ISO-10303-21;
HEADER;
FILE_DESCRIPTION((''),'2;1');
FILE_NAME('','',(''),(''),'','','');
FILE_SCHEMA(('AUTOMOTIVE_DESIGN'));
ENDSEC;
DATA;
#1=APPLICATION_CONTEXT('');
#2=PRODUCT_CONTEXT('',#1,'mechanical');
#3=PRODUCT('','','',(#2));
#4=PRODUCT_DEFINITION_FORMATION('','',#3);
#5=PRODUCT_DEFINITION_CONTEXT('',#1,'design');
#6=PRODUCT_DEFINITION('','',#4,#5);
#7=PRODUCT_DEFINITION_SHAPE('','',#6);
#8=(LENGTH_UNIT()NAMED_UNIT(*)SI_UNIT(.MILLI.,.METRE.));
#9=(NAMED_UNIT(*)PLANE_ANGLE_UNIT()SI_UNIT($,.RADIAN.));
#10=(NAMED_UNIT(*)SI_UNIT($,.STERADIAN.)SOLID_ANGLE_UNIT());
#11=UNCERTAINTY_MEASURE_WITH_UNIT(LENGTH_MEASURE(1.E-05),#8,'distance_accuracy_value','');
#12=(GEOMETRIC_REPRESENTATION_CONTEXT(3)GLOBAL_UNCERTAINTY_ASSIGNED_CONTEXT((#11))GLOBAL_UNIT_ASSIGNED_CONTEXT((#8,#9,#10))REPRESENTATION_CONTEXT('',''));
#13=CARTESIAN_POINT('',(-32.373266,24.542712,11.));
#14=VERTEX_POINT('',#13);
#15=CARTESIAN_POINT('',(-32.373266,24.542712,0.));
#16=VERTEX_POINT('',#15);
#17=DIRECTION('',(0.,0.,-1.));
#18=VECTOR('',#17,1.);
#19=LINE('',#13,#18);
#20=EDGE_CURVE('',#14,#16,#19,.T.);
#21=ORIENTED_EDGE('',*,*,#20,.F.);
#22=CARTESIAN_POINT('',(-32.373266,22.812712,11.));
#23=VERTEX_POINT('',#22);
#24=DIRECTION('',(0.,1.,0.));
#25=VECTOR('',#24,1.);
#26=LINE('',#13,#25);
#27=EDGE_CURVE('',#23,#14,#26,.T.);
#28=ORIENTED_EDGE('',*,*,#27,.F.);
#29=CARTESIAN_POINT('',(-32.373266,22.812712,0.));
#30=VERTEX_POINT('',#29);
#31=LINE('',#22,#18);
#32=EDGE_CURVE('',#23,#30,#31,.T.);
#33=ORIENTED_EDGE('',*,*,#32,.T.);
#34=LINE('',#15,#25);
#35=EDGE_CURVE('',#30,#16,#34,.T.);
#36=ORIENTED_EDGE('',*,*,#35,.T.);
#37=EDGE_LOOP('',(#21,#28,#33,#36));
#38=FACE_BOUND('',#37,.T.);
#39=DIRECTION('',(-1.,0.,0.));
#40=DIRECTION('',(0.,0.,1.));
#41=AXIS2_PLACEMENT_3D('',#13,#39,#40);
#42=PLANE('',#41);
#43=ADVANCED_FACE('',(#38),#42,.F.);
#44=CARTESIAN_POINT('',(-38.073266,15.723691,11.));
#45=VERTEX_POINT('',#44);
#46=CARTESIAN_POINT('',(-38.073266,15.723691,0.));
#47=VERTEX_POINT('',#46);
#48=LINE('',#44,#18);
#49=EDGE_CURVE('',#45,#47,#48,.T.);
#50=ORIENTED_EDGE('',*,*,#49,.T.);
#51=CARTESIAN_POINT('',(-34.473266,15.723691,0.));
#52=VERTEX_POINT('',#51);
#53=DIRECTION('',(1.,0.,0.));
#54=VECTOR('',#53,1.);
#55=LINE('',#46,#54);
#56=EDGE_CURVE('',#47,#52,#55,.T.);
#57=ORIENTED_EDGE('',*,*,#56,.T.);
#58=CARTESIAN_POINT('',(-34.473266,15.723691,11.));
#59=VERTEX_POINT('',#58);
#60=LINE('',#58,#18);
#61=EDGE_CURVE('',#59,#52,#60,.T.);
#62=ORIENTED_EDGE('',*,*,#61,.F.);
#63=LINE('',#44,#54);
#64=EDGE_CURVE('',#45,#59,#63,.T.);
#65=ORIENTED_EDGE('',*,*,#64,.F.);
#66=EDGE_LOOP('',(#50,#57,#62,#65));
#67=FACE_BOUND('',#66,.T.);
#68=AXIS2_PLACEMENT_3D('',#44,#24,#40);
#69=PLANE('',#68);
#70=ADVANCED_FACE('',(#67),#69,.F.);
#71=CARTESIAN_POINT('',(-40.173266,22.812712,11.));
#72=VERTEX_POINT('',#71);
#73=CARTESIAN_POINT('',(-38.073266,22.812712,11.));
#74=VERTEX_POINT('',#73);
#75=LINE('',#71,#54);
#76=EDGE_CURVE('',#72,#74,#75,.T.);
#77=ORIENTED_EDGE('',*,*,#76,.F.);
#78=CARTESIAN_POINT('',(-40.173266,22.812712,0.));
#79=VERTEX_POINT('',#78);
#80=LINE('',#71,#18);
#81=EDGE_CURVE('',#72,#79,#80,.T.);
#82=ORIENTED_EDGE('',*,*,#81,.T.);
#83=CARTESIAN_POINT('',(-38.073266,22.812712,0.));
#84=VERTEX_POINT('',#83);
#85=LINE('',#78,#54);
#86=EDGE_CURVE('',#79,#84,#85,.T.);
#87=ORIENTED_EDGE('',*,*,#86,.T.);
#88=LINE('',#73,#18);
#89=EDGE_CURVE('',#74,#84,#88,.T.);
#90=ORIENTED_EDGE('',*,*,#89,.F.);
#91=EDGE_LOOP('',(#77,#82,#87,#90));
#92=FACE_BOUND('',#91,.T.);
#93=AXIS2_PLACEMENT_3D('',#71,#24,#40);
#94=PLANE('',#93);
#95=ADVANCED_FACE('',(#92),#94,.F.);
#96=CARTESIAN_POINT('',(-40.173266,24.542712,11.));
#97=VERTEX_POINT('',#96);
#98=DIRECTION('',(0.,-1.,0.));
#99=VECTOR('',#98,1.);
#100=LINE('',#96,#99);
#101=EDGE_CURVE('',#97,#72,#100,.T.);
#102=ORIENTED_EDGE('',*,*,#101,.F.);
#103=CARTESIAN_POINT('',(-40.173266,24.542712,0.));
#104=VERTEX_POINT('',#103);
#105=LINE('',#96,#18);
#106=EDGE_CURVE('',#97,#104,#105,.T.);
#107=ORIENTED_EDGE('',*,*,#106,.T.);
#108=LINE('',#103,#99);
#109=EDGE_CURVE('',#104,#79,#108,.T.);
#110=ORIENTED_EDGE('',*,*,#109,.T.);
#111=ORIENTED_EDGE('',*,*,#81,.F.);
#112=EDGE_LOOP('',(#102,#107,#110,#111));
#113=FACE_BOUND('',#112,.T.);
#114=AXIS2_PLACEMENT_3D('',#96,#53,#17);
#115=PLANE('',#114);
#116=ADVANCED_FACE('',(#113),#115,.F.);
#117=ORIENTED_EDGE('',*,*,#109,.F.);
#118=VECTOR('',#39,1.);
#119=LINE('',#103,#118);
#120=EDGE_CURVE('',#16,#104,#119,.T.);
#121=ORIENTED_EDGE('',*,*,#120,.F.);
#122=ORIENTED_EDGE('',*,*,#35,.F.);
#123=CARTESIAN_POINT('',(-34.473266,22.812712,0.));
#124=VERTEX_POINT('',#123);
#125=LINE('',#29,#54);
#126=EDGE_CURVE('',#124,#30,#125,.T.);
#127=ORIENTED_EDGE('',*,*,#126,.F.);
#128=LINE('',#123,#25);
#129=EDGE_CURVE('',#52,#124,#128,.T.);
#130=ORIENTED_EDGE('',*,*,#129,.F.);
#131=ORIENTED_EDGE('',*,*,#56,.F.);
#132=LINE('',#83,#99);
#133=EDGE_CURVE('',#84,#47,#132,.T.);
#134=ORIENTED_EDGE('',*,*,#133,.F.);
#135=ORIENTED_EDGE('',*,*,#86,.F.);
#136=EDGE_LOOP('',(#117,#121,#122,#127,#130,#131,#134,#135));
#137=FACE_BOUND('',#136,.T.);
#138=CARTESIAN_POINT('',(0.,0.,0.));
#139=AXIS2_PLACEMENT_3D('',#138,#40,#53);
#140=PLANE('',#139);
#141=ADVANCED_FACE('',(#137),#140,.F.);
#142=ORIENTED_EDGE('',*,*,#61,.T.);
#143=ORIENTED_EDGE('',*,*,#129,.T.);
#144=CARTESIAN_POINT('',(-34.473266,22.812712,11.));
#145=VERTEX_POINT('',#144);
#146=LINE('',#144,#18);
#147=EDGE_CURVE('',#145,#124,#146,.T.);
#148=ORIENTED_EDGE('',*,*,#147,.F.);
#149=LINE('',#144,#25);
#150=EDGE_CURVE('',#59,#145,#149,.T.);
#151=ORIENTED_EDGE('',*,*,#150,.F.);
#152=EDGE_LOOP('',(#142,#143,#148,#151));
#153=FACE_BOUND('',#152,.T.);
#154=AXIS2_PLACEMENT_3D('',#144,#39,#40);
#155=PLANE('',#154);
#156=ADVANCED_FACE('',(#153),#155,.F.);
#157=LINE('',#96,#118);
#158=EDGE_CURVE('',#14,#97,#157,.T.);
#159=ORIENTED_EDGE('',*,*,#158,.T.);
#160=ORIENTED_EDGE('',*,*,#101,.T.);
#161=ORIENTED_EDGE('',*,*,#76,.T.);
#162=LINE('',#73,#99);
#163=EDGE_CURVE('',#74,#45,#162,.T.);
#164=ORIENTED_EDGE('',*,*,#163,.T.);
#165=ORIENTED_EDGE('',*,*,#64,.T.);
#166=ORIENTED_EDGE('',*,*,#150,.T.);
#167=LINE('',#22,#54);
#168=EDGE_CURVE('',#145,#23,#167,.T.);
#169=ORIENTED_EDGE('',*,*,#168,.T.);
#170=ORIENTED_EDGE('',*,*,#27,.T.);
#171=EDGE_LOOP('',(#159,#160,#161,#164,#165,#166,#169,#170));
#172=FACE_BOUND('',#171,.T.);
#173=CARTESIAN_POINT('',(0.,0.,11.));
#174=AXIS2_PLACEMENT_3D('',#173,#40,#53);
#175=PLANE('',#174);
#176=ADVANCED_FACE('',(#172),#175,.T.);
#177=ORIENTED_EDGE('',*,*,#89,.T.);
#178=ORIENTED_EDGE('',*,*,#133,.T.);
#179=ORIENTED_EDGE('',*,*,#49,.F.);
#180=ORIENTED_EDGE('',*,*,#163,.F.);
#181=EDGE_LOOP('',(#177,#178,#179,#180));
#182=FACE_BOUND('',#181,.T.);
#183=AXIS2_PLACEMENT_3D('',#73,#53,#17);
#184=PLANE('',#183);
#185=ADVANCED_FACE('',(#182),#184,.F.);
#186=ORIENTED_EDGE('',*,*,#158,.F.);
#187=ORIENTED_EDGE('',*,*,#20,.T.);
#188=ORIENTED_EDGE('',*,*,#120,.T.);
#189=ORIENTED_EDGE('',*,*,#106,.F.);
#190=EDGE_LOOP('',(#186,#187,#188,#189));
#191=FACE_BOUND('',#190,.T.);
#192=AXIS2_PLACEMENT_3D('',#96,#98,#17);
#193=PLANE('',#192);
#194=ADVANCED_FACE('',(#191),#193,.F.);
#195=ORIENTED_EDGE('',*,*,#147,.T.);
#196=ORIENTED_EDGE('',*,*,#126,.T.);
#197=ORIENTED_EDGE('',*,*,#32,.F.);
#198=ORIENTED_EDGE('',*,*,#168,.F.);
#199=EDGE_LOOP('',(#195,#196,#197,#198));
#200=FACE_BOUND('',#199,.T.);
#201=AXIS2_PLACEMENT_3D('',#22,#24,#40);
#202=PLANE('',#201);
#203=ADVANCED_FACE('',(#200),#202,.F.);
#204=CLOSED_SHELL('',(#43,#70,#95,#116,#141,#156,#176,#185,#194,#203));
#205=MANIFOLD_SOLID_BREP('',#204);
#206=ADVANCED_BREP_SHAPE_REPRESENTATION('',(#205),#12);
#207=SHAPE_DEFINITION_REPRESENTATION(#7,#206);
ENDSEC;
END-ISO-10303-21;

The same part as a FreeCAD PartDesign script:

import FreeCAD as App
import Part
import Sketcher

V = App.Vector


def add_polygon(sketch, points):
    """Adds a closed chain of lines whose ends are joined by coincident constraints."""
    first, n = sketch.GeometryCount, len(points)
    for a, b in zip(points, points[1:] + points[:1]):
        sketch.addGeometry(Part.LineSegment(App.Vector(*a, 0), App.Vector(*b, 0)), False)
    for i in range(n):
        sketch.addConstraint(Sketcher.Constraint("Coincident", first + i, 2, first + (i + 1) % n, 1))

doc = App.newDocument("Part")
body = doc.addObject("PartDesign::Body", "Body")

sketch1 = body.newObject("Sketcher::SketchObject", "Sketch")
sketch1.AttachmentSupport = (doc.getObject("XY_Plane"), [""])
sketch1.MapMode = "FlatFace"
add_polygon(sketch1, [(-32.4, 24.5), (-40.2, 24.5), (-40.2, 22.8), (-38.1, 22.8), (-38.1, 15.7), (-34.5, 15.7), (-34.5, 22.8), (-32.4, 22.8)])
sketch1.addConstraint(Sketcher.Constraint("Horizontal", 0))
sketch1.addConstraint(Sketcher.Constraint("Vertical", 1))
sketch1.addConstraint(Sketcher.Constraint("Horizontal", 2))
sketch1.addConstraint(Sketcher.Constraint("Vertical", 3))
sketch1.addConstraint(Sketcher.Constraint("Horizontal", 4))
sketch1.addConstraint(Sketcher.Constraint("Vertical", 5))
sketch1.addConstraint(Sketcher.Constraint("Horizontal", 6))
sketch1.addConstraint(Sketcher.Constraint("Vertical", 7))
sketch1.addConstraint(Sketcher.Constraint("Horizontal", 2, 2, 5, 2))
sketch1.addConstraint(Sketcher.Constraint("Equal", 2, 6))
sketch1.addConstraint(Sketcher.Constraint("DistanceX", 0, 2, 0, 1, 7.8))
sketch1.addConstraint(Sketcher.Constraint("DistanceX", 2, 1, 2, 2, 2.1))
sketch1.addConstraint(Sketcher.Constraint("DistanceY", 1, 2, 1, 1, 1.73))
sketch1.addConstraint(Sketcher.Constraint("DistanceY", 3, 2, 3, 1, 7.089021))
sketch1.addConstraint(Sketcher.Constraint("DistanceY", -1, 1, 0, 2, 24.542712))
sketch1.addConstraint(Sketcher.Constraint("DistanceX", 0, 2, -1, 1, 40.173266))
pad1 = body.newObject("PartDesign::Pad", "Pad")
pad1.Profile = sketch1
pad1.Length = 11

doc.recompute()
